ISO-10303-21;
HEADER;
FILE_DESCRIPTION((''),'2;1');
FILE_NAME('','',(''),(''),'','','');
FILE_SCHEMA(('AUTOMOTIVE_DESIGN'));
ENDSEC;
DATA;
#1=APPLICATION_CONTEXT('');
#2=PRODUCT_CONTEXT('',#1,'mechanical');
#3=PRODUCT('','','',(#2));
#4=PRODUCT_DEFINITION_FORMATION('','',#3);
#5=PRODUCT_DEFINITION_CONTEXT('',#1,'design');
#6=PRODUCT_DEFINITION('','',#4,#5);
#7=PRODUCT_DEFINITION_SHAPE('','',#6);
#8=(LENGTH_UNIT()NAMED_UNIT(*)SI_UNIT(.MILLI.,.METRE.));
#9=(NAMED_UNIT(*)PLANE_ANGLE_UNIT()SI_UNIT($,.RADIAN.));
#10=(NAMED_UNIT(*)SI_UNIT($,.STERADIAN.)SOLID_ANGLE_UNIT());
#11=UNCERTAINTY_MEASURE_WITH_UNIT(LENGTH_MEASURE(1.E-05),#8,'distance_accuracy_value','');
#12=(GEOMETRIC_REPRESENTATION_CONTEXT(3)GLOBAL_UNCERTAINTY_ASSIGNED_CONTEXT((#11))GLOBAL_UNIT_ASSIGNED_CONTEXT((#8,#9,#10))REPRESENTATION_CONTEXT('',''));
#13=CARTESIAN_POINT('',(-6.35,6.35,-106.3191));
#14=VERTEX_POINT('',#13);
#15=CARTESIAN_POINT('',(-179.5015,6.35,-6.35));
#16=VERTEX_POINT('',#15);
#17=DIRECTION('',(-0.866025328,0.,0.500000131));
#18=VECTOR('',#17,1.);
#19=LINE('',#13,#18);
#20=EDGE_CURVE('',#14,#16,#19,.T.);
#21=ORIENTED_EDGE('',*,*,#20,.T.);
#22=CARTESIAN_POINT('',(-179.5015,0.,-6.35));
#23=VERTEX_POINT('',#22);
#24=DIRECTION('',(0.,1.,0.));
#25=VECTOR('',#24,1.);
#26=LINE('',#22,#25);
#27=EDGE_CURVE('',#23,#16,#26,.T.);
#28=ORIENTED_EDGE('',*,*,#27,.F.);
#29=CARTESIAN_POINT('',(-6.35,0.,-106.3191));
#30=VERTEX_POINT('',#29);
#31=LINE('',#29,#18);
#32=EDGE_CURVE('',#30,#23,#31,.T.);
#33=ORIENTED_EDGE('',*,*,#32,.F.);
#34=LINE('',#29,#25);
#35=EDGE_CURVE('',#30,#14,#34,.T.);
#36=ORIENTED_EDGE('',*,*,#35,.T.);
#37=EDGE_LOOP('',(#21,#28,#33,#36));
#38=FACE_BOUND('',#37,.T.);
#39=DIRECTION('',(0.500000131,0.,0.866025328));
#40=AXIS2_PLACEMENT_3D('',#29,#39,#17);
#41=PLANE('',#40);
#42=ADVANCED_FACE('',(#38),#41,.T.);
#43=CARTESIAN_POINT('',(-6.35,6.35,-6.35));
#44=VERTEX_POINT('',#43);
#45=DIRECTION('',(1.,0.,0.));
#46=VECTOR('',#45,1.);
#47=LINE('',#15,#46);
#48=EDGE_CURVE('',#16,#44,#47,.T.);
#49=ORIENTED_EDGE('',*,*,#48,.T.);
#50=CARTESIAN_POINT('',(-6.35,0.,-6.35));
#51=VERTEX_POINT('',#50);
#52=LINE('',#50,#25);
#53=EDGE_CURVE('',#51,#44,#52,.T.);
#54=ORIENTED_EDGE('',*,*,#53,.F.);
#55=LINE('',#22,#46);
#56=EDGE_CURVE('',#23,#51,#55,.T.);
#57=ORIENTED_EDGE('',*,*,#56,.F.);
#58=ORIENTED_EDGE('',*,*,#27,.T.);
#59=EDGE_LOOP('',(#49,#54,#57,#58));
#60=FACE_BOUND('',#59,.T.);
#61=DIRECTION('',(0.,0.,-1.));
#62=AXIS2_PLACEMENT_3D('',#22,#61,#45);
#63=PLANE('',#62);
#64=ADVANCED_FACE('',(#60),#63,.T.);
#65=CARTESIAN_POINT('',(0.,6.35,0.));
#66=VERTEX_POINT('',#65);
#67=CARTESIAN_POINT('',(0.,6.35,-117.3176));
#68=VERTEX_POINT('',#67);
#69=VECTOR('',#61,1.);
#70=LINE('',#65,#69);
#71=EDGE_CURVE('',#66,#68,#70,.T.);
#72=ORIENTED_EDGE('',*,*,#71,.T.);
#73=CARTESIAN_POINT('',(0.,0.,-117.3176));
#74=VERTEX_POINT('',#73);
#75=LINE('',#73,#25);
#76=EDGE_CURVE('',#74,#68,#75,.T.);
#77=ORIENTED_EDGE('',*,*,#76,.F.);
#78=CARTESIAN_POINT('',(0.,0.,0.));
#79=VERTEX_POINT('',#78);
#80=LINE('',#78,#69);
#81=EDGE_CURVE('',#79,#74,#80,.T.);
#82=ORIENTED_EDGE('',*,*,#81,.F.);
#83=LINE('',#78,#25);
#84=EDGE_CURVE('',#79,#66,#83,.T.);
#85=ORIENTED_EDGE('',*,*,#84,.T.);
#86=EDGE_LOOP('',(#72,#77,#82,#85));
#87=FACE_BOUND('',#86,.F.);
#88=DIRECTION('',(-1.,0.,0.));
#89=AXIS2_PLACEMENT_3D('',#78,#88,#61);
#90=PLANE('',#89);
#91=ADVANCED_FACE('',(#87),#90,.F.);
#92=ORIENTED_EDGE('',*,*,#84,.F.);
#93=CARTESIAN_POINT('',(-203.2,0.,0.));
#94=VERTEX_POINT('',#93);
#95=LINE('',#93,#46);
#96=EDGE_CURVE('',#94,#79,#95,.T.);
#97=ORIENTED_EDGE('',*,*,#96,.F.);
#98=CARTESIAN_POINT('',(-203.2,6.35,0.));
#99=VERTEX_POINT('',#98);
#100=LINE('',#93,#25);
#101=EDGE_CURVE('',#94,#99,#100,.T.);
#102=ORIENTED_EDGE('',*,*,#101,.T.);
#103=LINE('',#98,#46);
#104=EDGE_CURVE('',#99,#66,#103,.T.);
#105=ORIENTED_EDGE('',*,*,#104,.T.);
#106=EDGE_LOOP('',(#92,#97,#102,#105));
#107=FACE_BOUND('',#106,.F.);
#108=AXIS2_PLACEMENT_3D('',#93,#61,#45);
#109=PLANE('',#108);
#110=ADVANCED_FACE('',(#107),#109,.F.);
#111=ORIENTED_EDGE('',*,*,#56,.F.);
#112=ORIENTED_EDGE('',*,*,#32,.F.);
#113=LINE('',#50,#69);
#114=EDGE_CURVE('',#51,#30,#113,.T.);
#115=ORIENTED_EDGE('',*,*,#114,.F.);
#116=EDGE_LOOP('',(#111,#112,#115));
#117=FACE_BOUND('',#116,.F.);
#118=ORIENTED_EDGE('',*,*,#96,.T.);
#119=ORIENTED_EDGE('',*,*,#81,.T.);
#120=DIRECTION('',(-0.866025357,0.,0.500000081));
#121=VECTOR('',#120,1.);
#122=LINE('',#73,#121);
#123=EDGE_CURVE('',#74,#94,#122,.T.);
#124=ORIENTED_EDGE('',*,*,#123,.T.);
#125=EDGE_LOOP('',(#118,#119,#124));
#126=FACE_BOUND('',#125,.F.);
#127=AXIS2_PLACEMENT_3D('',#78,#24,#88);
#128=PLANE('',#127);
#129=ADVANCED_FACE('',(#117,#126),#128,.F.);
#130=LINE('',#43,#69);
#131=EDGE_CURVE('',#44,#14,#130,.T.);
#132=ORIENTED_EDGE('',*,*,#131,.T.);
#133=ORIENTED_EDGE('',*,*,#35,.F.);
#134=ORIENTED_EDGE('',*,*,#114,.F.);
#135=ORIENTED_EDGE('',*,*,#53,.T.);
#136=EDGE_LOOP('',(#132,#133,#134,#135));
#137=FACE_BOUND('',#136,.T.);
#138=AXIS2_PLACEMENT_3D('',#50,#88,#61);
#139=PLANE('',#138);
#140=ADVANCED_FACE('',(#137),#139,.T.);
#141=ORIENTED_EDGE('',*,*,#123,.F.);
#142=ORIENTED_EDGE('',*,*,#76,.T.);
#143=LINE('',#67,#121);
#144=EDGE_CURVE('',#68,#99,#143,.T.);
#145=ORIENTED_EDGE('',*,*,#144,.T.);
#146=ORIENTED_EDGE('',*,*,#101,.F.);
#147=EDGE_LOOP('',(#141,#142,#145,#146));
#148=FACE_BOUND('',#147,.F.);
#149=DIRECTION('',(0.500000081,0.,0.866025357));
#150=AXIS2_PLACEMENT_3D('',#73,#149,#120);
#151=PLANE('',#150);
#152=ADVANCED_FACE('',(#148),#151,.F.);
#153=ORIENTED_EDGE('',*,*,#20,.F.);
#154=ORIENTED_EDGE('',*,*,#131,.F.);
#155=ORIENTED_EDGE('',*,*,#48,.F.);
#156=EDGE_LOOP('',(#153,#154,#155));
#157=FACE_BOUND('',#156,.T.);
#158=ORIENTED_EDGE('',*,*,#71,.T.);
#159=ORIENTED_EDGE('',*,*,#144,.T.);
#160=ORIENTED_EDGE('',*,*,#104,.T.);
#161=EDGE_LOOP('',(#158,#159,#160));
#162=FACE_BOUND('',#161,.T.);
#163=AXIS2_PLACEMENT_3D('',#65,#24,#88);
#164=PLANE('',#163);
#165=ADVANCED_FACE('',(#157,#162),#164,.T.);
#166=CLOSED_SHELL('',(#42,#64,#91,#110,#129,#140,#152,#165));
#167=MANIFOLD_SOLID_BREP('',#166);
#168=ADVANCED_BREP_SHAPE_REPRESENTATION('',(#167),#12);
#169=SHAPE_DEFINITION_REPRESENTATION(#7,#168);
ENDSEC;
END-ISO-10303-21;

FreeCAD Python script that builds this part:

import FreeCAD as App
import Part
import Sketcher
Q = App.Units.Quantity

doc = App.newDocument("Part")
body = doc.addObject("PartDesign::Body", "Body")

# Sketch on XZ plane
sketch1 = body.newObject("Sketcher::SketchObject", "Sketch")
sketch1.AttachmentSupport = (doc.getObject("XZ_Plane"), [""])
sketch1.MapMode = "FlatFace"
sketch1.addGeometry([
    Part.LineSegment(App.Vector(-203.2, 0, 0), App.Vector(0, 0, 0)),  # 0
    Part.LineSegment(App.Vector(0, 0, 0), App.Vector(0, -117.3176, 0)),  # 1
    Part.LineSegment(App.Vector(0, -117.3176, 0), App.Vector(-203.2, 0, 0)),  # 2
    Part.LineSegment(App.Vector(-6.35, -6.35, 0), App.Vector(-179.5015, -6.35, 0)),  # 3
    Part.LineSegment(App.Vector(-179.5015, -6.35, 0), App.Vector(-6.35, -106.3191, 0)),  # 4
    Part.LineSegment(App.Vector(-6.35, -106.3191, 0), App.Vector(-6.35, -6.35, 0)),  # 5
], False)
sketch1.addConstraint([
    Sketcher.Constraint("Coincident", 0, 2, 1, 1),
    Sketcher.Constraint("Coincident", 1, 2, 2, 1),
    Sketcher.Constraint("Coincident", 2, 2, 0, 1),
    Sketcher.Constraint("Coincident", 3, 2, 4, 1),
    Sketcher.Constraint("Coincident", 4, 2, 5, 1),
    Sketcher.Constraint("Coincident", 5, 2, 3, 1),
    Sketcher.Constraint("Horizontal", 0),
    Sketcher.Constraint("Vertical", 1),
    Sketcher.Constraint("Horizontal", 3),
    Sketcher.Constraint("Vertical", 5),
    Sketcher.Constraint("Coincident", 0, 2, -1, 1),
    Sketcher.Constraint("Parallel", 2, 4),
    Sketcher.Constraint("DistanceX", 0, 1, 0, 2, Q("8 in")),
    Sketcher.Constraint("Angle", 4, Q("-30 deg")),
    Sketcher.Constraint("DistanceY", 3, 2, -1, 1, Q("0.25 in")),
    Sketcher.Constraint("DistanceX", 4, 2, -1, 1, Q("0.25 in")),
    Sketcher.Constraint("DistanceX", 3, 2, 3, 1, Q("6.817 in")),
])
pad1 = body.newObject("PartDesign::Pad", "Pad")
pad1.Profile = sketch1
pad1.Length = Q("0.25 in")
pad1.Reversed = True

doc.recompute()
